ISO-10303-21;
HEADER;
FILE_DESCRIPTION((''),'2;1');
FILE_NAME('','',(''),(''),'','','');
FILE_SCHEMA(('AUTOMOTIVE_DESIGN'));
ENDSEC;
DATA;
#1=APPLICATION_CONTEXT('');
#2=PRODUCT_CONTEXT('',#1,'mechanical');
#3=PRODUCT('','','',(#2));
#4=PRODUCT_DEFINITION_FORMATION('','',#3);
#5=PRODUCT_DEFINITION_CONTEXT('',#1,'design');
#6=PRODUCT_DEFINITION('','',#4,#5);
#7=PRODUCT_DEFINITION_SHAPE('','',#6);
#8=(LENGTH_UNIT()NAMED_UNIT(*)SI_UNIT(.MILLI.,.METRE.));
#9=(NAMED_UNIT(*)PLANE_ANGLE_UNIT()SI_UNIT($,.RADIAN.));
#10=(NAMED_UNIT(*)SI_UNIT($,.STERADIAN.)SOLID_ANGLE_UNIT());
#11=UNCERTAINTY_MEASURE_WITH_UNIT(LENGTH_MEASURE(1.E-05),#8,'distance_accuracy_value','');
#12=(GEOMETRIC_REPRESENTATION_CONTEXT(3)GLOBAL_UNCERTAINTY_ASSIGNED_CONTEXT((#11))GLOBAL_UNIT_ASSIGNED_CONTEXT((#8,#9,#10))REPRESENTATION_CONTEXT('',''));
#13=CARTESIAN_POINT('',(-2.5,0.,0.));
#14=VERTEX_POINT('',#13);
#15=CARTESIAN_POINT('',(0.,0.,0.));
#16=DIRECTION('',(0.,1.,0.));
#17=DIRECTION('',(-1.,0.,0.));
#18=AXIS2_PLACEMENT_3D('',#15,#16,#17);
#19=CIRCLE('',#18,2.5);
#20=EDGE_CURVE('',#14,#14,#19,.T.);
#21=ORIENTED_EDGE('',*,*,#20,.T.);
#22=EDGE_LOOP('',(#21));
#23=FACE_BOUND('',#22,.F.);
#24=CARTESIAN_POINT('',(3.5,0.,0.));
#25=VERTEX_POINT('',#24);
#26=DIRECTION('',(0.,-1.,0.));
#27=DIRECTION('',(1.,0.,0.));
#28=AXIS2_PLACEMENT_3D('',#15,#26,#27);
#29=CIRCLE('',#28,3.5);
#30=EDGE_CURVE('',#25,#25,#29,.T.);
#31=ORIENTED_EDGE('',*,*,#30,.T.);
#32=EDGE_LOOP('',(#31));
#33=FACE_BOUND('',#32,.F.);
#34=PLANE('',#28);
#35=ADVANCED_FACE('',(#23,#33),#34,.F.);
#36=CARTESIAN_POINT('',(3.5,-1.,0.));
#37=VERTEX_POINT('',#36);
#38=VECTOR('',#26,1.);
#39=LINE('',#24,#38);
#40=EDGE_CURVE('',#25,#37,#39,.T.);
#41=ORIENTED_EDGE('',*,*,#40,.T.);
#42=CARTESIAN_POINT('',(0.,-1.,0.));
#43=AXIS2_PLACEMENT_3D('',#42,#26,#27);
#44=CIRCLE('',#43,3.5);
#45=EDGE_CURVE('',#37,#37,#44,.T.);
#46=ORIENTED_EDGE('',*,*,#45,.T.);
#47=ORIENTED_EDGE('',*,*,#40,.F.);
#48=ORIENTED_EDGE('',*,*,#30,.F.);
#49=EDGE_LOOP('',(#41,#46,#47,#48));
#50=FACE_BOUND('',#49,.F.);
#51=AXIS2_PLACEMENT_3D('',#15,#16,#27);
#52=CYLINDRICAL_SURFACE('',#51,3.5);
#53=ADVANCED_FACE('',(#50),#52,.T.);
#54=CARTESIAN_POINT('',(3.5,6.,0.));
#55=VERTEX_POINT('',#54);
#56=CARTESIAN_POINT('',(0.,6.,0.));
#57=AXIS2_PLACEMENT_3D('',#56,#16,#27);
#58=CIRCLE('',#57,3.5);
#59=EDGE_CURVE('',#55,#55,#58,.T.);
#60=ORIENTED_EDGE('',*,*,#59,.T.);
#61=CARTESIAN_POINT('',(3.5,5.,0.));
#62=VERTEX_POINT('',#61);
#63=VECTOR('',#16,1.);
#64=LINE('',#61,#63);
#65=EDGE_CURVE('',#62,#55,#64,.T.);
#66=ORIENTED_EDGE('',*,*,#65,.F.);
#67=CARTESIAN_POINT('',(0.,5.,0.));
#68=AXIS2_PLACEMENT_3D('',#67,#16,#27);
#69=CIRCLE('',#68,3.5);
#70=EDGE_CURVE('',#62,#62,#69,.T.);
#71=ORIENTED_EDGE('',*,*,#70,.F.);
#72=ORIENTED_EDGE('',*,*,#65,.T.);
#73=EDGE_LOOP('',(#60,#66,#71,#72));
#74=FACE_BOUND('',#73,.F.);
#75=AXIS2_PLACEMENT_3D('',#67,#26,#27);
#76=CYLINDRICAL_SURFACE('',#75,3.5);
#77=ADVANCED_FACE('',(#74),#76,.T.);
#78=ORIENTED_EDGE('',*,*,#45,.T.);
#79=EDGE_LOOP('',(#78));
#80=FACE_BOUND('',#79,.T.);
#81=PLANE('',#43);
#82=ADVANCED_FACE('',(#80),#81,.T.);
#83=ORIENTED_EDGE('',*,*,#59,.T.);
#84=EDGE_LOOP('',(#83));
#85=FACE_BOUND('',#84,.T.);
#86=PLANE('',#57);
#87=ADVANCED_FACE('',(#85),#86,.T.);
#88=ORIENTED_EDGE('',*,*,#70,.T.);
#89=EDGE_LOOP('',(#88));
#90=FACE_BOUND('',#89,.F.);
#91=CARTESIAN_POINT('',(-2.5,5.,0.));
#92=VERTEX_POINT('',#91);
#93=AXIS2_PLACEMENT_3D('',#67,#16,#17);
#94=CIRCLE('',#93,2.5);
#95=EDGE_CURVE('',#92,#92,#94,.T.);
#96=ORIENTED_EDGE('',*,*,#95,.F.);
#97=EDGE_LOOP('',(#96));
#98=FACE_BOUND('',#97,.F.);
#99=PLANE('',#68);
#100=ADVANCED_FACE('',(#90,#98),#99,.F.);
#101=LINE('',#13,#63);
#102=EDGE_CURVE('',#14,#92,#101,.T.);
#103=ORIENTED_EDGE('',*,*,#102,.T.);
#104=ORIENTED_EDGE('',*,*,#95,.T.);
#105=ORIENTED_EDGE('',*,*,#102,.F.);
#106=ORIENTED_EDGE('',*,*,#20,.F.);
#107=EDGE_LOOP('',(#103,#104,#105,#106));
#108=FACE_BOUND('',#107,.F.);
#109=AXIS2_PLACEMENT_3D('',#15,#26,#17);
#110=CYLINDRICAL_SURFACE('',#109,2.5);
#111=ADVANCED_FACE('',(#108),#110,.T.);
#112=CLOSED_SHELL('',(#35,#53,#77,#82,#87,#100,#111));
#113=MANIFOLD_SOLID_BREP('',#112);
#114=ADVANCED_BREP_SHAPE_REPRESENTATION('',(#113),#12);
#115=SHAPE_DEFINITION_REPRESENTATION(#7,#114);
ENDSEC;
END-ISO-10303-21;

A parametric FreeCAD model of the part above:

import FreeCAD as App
import Part
import Sketcher

doc = App.newDocument("Part")
body = doc.addObject("PartDesign::Body", "Body")

sketch1 = body.newObject("Sketcher::SketchObject", "Sketch")
sketch1.AttachmentSupport = (doc.getObject("XZ_Plane"), [""])
sketch1.MapMode = "FlatFace"
sketch1.addGeometry(Part.Circle(App.Vector(0, 0, 0), App.Vector(0, 0, 1), 2.5), False)
sketch1.addConstraint([
    Sketcher.Constraint("Coincident", 0, 3, -1, 1),
    Sketcher.Constraint("Diameter", 0, 5.0),
])
pad1 = body.newObject("PartDesign::Pad", "Pad")
pad1.Profile = sketch1
pad1.Length = 5
pad1.Reversed = True

sketch2 = body.newObject("Sketcher::SketchObject", "Sketch001")
sketch2.AttachmentSupport = (doc.getObject("XZ_Plane"), [""])
sketch2.MapMode = "FlatFace"
sketch2.AttachmentOffset = App.Placement(App.Vector(0, 0, -5), App.Rotation())
sketch2.addGeometry(Part.Circle(App.Vector(0, 0, 0), App.Vector(0, 0, 1), 3.5), False)
sketch2.addConstraint([
    Sketcher.Constraint("Coincident", 0, 3, -1, 1),
    Sketcher.Constraint("Diameter", 0, 7.0),
])
pad2 = body.newObject("PartDesign::Pad", "Pad001")
pad2.Profile = sketch2
pad2.Length = 1
pad2.Reversed = True

sketch3 = body.newObject("Sketcher::SketchObject", "Sketch002")
sketch3.AttachmentSupport = (doc.getObject("XZ_Plane"), [""])
sketch3.MapMode = "FlatFace"
sketch3.addGeometry(Part.Circle(App.Vector(0, 0, 0), App.Vector(0, 0, 1), 3.5), False)
sketch3.addConstraint([
    Sketcher.Constraint("Coincident", 0, 3, -1, 1),
    Sketcher.Constraint("Diameter", 0, 7.0),
])
pad3 = body.newObject("PartDesign::Pad", "Pad002")
pad3.Profile = sketch3
pad3.Length = 1

doc.recompute()
